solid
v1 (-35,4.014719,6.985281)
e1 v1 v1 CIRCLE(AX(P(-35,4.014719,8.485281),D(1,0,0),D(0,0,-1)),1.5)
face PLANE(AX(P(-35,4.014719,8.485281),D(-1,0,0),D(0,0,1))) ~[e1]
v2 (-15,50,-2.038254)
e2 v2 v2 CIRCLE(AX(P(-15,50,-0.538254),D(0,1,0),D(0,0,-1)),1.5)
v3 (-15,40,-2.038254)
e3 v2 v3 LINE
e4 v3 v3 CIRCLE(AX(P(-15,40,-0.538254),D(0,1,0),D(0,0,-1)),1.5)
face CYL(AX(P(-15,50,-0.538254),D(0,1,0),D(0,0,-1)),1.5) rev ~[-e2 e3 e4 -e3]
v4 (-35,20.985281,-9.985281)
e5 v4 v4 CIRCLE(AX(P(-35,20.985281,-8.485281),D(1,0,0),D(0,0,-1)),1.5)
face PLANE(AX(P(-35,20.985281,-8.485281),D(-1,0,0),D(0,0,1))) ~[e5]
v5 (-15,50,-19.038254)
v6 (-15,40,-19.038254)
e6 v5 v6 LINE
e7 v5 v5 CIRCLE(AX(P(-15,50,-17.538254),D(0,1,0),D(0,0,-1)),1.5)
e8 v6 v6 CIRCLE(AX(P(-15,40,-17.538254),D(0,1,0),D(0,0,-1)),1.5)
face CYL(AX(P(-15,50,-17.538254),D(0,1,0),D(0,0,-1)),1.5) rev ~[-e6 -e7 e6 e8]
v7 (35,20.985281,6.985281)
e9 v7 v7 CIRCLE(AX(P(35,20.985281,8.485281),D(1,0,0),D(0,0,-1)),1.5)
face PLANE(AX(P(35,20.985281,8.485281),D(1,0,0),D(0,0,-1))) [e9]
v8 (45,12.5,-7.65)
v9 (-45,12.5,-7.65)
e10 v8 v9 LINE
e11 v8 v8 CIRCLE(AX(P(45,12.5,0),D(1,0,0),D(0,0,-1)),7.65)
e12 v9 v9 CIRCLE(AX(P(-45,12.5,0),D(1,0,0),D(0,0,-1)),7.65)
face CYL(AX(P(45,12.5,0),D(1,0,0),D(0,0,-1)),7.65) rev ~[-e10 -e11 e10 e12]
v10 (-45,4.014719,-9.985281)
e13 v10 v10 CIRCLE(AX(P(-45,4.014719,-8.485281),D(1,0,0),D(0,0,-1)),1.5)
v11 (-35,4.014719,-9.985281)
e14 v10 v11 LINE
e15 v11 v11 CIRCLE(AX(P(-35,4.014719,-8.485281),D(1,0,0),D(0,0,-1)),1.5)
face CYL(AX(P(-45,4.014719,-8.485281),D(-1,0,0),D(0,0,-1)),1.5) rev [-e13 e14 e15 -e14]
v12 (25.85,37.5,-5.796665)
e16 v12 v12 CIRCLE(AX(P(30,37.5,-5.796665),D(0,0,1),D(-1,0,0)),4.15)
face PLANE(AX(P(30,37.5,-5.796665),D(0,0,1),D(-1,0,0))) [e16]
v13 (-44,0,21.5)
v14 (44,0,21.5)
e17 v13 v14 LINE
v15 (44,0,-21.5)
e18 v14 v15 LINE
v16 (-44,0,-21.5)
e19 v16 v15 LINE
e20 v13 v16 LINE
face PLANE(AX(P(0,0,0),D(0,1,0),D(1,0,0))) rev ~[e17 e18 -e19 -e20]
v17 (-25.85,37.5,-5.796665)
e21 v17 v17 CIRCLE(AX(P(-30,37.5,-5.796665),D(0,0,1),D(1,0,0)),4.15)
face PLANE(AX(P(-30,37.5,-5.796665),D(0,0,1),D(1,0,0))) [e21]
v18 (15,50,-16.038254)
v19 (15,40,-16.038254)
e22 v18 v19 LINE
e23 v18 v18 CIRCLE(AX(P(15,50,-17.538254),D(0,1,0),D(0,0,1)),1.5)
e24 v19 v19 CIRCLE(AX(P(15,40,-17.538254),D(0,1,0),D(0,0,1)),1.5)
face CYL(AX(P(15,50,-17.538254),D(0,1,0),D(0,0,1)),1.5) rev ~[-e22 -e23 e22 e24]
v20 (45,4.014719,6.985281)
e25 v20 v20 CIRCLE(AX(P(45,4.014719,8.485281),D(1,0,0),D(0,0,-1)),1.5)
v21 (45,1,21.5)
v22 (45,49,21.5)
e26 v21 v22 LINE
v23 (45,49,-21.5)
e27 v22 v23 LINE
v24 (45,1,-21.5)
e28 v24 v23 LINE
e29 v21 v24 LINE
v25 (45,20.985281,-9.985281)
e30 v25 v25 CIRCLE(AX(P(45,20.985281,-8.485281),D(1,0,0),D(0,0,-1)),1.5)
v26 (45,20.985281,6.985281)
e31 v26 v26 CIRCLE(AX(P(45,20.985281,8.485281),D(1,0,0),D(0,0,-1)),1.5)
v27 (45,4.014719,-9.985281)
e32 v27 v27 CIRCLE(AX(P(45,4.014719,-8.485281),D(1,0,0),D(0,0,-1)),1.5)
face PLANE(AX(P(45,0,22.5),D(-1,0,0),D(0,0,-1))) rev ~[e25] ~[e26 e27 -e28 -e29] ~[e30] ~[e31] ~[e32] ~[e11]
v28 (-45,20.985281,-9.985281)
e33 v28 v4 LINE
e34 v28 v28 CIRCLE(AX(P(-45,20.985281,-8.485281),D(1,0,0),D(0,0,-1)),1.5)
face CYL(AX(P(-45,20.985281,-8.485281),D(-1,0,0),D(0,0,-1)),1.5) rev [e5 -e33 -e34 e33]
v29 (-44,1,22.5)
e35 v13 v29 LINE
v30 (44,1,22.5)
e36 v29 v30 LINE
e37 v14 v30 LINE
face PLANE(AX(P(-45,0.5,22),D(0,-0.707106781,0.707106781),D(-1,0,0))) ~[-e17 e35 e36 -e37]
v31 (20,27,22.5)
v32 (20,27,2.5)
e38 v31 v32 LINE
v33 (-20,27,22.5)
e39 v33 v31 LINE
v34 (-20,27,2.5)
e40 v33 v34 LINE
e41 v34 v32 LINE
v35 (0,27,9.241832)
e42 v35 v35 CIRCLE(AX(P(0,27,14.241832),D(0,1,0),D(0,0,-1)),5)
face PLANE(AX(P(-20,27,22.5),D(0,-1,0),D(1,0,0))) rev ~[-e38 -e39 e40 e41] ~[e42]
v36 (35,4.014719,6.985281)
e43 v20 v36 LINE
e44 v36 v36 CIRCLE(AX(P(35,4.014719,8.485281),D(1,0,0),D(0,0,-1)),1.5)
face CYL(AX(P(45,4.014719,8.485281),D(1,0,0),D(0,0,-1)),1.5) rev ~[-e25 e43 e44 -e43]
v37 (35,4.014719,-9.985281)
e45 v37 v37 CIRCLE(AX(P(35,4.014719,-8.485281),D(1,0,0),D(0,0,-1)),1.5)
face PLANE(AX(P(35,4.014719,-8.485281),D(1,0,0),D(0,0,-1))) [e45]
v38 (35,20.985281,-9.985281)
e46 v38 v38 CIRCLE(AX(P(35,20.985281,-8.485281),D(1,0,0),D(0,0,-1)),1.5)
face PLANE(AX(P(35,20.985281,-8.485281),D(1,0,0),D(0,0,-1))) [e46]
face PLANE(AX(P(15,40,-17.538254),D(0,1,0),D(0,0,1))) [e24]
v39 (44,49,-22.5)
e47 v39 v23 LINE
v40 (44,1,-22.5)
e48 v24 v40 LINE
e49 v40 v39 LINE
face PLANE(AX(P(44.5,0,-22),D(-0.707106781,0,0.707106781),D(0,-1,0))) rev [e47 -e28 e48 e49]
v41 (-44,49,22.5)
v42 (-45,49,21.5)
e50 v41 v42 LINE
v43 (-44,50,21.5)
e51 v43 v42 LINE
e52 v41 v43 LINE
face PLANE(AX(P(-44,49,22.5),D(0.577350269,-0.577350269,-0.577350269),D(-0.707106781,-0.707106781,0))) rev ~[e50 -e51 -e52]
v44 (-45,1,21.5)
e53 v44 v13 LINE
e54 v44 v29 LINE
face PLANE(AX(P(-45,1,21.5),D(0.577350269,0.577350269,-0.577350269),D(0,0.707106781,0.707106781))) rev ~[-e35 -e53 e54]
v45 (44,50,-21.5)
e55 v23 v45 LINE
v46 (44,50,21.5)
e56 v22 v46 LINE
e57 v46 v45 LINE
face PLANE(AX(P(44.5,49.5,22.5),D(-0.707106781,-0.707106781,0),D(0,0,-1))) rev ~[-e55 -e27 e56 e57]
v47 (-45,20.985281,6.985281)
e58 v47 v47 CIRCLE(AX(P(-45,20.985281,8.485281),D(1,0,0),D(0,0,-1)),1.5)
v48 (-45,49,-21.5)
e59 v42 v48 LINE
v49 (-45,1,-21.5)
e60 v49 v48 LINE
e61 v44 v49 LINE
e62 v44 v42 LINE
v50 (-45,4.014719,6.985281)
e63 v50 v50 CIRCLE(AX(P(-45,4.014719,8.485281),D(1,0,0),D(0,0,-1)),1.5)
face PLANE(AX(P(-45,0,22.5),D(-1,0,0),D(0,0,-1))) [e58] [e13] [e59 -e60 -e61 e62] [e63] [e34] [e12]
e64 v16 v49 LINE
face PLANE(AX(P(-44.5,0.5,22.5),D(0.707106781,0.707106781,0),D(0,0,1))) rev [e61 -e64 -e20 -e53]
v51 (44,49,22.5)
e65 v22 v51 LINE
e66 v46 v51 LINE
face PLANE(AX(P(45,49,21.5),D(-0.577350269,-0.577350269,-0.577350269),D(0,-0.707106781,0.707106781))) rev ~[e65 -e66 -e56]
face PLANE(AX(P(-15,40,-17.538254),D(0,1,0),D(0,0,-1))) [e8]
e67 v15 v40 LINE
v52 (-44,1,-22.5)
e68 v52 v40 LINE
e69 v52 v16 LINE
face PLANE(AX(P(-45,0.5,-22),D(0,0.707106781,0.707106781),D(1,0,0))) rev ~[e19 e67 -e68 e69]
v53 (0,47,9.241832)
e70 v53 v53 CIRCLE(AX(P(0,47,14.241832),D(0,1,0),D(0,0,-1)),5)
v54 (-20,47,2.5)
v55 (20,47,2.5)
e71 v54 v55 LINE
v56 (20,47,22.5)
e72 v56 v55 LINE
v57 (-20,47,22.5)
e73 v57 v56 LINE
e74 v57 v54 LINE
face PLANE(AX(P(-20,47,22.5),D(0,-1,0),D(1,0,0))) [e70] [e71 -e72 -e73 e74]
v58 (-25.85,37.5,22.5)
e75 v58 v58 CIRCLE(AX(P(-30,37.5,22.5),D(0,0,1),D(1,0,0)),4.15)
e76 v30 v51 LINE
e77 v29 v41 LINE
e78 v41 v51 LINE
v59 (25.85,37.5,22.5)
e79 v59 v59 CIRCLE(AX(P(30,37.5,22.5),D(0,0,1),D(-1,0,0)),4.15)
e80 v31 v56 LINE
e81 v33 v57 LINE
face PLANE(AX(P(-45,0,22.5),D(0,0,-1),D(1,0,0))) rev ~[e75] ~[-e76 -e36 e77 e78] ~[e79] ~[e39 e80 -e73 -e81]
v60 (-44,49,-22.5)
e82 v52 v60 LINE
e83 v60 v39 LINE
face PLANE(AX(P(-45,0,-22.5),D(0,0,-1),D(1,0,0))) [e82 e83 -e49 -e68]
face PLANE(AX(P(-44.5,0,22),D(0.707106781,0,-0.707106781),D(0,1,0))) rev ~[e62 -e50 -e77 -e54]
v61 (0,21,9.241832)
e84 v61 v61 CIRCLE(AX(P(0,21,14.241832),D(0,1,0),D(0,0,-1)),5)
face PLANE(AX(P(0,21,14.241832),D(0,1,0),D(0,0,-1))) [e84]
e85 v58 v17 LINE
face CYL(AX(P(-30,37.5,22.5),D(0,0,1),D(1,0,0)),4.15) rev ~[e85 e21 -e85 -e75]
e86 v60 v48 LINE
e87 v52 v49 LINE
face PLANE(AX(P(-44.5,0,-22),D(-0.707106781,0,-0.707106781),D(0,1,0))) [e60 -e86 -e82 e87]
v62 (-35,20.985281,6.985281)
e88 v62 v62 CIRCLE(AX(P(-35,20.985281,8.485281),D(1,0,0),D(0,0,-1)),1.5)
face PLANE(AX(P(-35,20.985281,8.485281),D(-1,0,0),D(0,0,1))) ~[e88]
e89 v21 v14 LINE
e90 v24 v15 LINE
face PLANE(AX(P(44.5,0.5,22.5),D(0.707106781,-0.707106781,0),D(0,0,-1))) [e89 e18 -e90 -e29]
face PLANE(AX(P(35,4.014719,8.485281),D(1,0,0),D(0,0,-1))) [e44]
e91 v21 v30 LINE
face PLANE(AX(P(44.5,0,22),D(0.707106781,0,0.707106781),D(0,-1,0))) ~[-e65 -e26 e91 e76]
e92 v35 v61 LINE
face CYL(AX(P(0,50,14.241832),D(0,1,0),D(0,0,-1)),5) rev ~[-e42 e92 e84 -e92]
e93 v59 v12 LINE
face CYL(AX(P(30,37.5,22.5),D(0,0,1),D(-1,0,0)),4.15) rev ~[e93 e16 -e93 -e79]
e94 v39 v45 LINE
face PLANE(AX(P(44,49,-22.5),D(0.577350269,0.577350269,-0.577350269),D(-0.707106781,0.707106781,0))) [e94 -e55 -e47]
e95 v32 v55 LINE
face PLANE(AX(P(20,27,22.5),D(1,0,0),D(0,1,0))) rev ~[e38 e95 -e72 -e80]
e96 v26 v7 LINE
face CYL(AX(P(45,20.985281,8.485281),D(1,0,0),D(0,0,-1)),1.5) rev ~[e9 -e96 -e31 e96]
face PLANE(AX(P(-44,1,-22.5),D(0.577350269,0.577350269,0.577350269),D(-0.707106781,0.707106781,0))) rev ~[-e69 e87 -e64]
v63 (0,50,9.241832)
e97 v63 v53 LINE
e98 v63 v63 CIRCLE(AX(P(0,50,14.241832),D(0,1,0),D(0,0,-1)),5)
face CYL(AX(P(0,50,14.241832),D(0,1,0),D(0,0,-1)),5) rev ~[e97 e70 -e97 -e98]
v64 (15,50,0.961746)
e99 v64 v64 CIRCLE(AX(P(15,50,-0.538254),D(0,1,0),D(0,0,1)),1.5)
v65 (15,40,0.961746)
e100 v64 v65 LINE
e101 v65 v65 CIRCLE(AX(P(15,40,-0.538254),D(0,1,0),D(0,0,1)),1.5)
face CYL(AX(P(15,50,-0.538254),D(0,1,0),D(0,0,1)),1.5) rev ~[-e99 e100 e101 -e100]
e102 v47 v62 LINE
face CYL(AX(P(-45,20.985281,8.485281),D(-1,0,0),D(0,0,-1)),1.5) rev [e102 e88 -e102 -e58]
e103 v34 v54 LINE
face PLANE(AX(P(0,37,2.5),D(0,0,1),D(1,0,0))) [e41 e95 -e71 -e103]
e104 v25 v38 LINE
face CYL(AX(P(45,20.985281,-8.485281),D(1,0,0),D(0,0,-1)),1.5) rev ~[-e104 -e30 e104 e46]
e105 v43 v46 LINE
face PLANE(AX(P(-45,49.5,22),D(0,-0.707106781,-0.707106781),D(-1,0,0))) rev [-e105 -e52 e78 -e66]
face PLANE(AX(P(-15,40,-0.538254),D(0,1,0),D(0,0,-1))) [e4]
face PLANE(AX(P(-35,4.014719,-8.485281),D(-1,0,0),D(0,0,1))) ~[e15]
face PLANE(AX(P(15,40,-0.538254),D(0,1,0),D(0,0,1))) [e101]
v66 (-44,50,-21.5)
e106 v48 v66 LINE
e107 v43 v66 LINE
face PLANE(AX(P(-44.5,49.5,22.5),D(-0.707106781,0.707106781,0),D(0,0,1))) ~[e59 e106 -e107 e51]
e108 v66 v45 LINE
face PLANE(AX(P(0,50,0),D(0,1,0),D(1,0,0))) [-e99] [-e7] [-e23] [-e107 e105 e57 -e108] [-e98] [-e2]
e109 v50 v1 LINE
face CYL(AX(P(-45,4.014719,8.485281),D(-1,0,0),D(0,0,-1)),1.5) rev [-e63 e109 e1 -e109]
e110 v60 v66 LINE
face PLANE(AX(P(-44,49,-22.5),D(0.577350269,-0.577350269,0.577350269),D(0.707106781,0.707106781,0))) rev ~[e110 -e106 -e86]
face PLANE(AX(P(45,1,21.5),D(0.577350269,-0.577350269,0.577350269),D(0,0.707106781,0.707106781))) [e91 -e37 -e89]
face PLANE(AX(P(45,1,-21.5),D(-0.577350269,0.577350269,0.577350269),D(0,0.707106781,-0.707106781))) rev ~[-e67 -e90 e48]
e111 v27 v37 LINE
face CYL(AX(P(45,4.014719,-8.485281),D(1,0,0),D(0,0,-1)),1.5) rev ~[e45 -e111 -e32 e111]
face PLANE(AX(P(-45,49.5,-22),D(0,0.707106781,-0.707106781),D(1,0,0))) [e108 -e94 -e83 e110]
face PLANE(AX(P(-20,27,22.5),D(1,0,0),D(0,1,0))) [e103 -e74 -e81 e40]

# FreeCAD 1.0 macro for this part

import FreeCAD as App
import Part
import Sketcher

V = App.Vector
Q = App.Units.Quantity


def edges_at(feature, points):
    """Names of the edges that pass closest to the given points."""
    edges = feature.Shape.Edges
    near = lambda p: min(range(len(edges)), key=lambda i: edges[i].distToShape(Part.Vertex(*p))[0])
    return sorted({f"Edge{near(p) + 1}" for p in points})


def add_polygon(sketch, points):
    """Adds a closed chain of lines whose ends are joined by coincident constraints."""
    first, n = sketch.GeometryCount, len(points)
    for a, b in zip(points, points[1:] + points[:1]):
        sketch.addGeometry(Part.LineSegment(App.Vector(*a, 0), App.Vector(*b, 0)), False)
    for i in range(n):
        sketch.addConstraint(Sketcher.Constraint("Coincident", first + i, 2, first + (i + 1) % n, 1))

doc = App.newDocument("Part")
body = doc.addObject("PartDesign::Body", "Body")

# Sketch on XZ plane
sketch1 = body.newObject("Sketcher::SketchObject", "Sketch")
sketch1.AttachmentSupport = (doc.getObject("XZ_Plane"), [""])
sketch1.MapMode = "FlatFace"
add_polygon(sketch1, [(-45, -22), (-45, 22), (45, 22), (45, -22)])  # lines 0-3
sketch1.addConstraint([
    Sketcher.Constraint("Vertical", 0),
    Sketcher.Constraint("Horizontal", 1),
    Sketcher.Constraint("Vertical", 2),
    Sketcher.Constraint("Horizontal", 3),
    Sketcher.Constraint("Symmetric", 0, 2, 2, 2, -1, 1),
    Sketcher.Constraint("DistanceX", 1, 1, 1, 2, Q("90 mm")),
    Sketcher.Constraint("DistanceY", 0, 1, 0, 2, Q("45 mm")),
])
pad1 = body.newObject("PartDesign::Pad", "Pad")
pad1.Profile = sketch1
pad1.Length = 50
pad1.Reversed = True

# Sketch on XY plane
sketch2 = body.newObject("Sketcher::SketchObject", "Sketch001")
sketch2.AttachmentSupport = (doc.getObject("XY_Plane"), [""])
sketch2.MapMode = "FlatFace"
sketch2.AttachmentOffset = App.Placement(V(0, 0, 22.5), App.Rotation())
sketch2.addGeometry([
    Part.Circle(V(-30, 37.5, 0), V(0, 0, 1), 4.2),
    Part.Circle(V(30, 37.5, 0), V(0, 0, 1), 4.2),
], False)
sketch2.addConstraint([
    Sketcher.Constraint("Equal", 0, 1),
    Sketcher.Constraint("Symmetric", 0, 3, 1, 3, -2),
    Sketcher.Constraint("Diameter", 0, Q("8.3 mm")),
    Sketcher.Constraint("DistanceX", 0, 3, -1, 1, Q("30 mm")),
    Sketcher.Constraint("DistanceY", -1, 1, 0, 3, Q("37.5 mm")),
])
pocket1 = body.newObject("PartDesign::Pocket", "Pocket")
pocket1.Profile = sketch2
pocket1.Length = 28.296665

# Sketch on YZ plane
sketch3 = body.newObject("Sketcher::SketchObject", "Sketch002")
sketch3.AttachmentSupport = (doc.getObject("YZ_Plane"), [""])
sketch3.MapMode = "FlatFace"
sketch3.AttachmentOffset = App.Placement(V(0, 0, 45), App.Rotation())
sketch3.addGeometry(Part.Circle(V(12, 0, 0), V(0, 0, 1), 8), False)
sketch3.addConstraint([
    Sketcher.Constraint("PointOnObject", 0, 3, -1),
    Sketcher.Constraint("Diameter", 0, Q("15.3 mm")),
    Sketcher.Constraint("DistanceX", -1, 1, 0, 3, Q("12.5 mm")),
])
pocket2 = body.newObject("PartDesign::Pocket", "Pocket001")
pocket2.Profile = sketch3
pocket2.Type = "ThroughAll"

# Sketch on YZ plane
sketch4 = body.newObject("Sketcher::SketchObject", "Sketch003")
sketch4.AttachmentSupport = (doc.getObject("YZ_Plane"), [""])
sketch4.MapMode = "FlatFace"
sketch4.AttachmentOffset = App.Placement(V(0, 0, 45), App.Rotation())
sketch4.addGeometry([
    Part.Circle(V(21, 8.5, 0), V(0, 0, 1), 1.5),
    Part.Circle(V(21, -8.5, 0), V(0, 0, 1), 1.5),
    Part.Circle(V(4, -8.5, 0), V(0, 0, 1), 1.5),
    Part.Circle(V(4, 8.5, 0), V(0, 0, 1), 1.5),
], False)
sketch4.addConstraint([
    Sketcher.Constraint("Equal", 0, 1),
    Sketcher.Constraint("Equal", 1, 2),
    Sketcher.Constraint("Equal", 2, 3),
    Sketcher.Constraint("Symmetric", 0, 3, 1, 3, -1),
    Sketcher.Constraint("Symmetric", 2, 3, 3, 3, -1),
    Sketcher.Constraint("Horizontal", 1, 3, 2, 3),
    Sketcher.Constraint("Diameter", 0, Q("3 mm")),
    Sketcher.Constraint("DistanceX", -1, 1, 0, 3, Q("20.985281 mm")),
    Sketcher.Constraint("DistanceY", -1, 1, 0, 3, Q("8.485281 mm")),
    Sketcher.Constraint("DistanceX", -1, 1, 2, 3, Q("4.014719 mm")),
])
pocket3 = body.newObject("PartDesign::Pocket", "Pocket002")
pocket3.Profile = sketch4
pocket3.Length = 10
doc.recompute()

mirrored = body.newObject("PartDesign::Mirrored", "Mirrored")
mirrored.Originals = [pocket3]
mirrored.MirrorPlane = (doc.getObject("YZ_Plane"), [""])
body.Tip = mirrored
doc.recompute()

chamfer = body.newObject("PartDesign::Chamfer", "Chamfer")
chamfer.Base = (mirrored, edges_at(mirrored, [
    (-45, 50, 0),
    (0, 50, 22.5),
    (45, 50, 0),
    (0, 0, 22.5),
    (-45, 0, 0),
    (0, 0, -22.5),
    (45, 0, 0),
    (45, 25, 22.5),
    (-45, 25, 22.5),
    (-45, 25, -22.5),
    (45, 25, -22.5),
    (0, 50, -22.5),
]))
chamfer.Size = 1

# Sketch on XZ plane
sketch5 = body.newObject("Sketcher::SketchObject", "Sketch004")
sketch5.AttachmentSupport = (doc.getObject("XZ_Plane"), [""])
sketch5.MapMode = "FlatFace"
sketch5.AttachmentOffset = App.Placement(V(0, 0, -50), App.Rotation())
sketch5.addGeometry([
    Part.Circle(V(15, -0.5, 0), V(0, 0, 1), 1.5),
    Part.Circle(V(15, -17.5, 0), V(0, 0, 1), 1.5),
    Part.Circle(V(-15, -17.5, 0), V(0, 0, 1), 1.5),
    Part.Circle(V(-15, -0.5, 0), V(0, 0, 1), 1.5),
], False)
sketch5.addConstraint([
    Sketcher.Constraint("Equal", 0, 1),
    Sketcher.Constraint("Equal", 1, 2),
    Sketcher.Constraint("Equal", 2, 3),
    Sketcher.Constraint("Symmetric", 1, 3, 2, 3, -2),
    Sketcher.Constraint("Symmetric", 0, 3, 3, 3, -2),
    Sketcher.Constraint("Vertical", 0, 3, 1, 3),
    Sketcher.Constraint("Diameter", 0, Q("3 mm")),
    Sketcher.Constraint("DistanceX", -1, 1, 0, 3, Q("15 mm")),
    Sketcher.Constraint("DistanceY", 1, 3, 0, 3, Q("17 mm")),
    Sketcher.Constraint("DistanceY", 0, 3, -1, 1, Q("0.538254 mm")),
])
pocket4 = body.newObject("PartDesign::Pocket", "Pocket003")
pocket4.Profile = sketch5
pocket4.Length = 10
pocket4.Reversed = True

# Sketch on XY plane
sketch6 = body.newObject("Sketcher::SketchObject", "Sketch005")
sketch6.AttachmentSupport = (doc.getObject("XY_Plane"), [""])
sketch6.MapMode = "FlatFace"
sketch6.AttachmentOffset = App.Placement(V(0, 0, 22.5), App.Rotation())
add_polygon(sketch6, [(-20, 47), (-20, 27), (20, 27), (20, 47)])  # lines 0-3
sketch6.addConstraint([
    Sketcher.Constraint("Vertical", 0),
    Sketcher.Constraint("Horizontal", 1),
    Sketcher.Constraint("Vertical", 2),
    Sketcher.Constraint("Horizontal", 3),
    Sketcher.Constraint("DistanceX", 1, 1, 1, 2, Q("40 mm")),
    Sketcher.Constraint("DistanceY", 0, 2, 0, 1, Q("20 mm")),
    Sketcher.Constraint("DistanceX", 0, 2, -1, 1, Q("20 mm")),
    Sketcher.Constraint("DistanceY", -1, 1, 0, 2, Q("27 mm")),
])
pocket5 = body.newObject("PartDesign::Pocket", "Pocket004")
pocket5.Profile = sketch6
pocket5.Length = 20

# Sketch on XZ plane
sketch7 = body.newObject("Sketcher::SketchObject", "Sketch006")
sketch7.AttachmentSupport = (doc.getObject("XZ_Plane"), [""])
sketch7.MapMode = "FlatFace"
sketch7.AttachmentOffset = App.Placement(V(0, 0, -50), App.Rotation())
sketch7.addGeometry(Part.Circle(V(0, 14, 0), V(0, 0, 1), 5), False)
sketch7.addConstraint([
    Sketcher.Constraint("PointOnObject", 0, 3, -2),
    Sketcher.Constraint("Diameter", 0, Q("10 mm")),
    Sketcher.Constraint("DistanceY", -1, 1, 0, 3, Q("14.241832 mm")),
])
pocket6 = body.newObject("PartDesign::Pocket", "Pocket005")
pocket6.Profile = sketch7
pocket6.Length = 29
pocket6.Reversed = True

doc.recompute()
